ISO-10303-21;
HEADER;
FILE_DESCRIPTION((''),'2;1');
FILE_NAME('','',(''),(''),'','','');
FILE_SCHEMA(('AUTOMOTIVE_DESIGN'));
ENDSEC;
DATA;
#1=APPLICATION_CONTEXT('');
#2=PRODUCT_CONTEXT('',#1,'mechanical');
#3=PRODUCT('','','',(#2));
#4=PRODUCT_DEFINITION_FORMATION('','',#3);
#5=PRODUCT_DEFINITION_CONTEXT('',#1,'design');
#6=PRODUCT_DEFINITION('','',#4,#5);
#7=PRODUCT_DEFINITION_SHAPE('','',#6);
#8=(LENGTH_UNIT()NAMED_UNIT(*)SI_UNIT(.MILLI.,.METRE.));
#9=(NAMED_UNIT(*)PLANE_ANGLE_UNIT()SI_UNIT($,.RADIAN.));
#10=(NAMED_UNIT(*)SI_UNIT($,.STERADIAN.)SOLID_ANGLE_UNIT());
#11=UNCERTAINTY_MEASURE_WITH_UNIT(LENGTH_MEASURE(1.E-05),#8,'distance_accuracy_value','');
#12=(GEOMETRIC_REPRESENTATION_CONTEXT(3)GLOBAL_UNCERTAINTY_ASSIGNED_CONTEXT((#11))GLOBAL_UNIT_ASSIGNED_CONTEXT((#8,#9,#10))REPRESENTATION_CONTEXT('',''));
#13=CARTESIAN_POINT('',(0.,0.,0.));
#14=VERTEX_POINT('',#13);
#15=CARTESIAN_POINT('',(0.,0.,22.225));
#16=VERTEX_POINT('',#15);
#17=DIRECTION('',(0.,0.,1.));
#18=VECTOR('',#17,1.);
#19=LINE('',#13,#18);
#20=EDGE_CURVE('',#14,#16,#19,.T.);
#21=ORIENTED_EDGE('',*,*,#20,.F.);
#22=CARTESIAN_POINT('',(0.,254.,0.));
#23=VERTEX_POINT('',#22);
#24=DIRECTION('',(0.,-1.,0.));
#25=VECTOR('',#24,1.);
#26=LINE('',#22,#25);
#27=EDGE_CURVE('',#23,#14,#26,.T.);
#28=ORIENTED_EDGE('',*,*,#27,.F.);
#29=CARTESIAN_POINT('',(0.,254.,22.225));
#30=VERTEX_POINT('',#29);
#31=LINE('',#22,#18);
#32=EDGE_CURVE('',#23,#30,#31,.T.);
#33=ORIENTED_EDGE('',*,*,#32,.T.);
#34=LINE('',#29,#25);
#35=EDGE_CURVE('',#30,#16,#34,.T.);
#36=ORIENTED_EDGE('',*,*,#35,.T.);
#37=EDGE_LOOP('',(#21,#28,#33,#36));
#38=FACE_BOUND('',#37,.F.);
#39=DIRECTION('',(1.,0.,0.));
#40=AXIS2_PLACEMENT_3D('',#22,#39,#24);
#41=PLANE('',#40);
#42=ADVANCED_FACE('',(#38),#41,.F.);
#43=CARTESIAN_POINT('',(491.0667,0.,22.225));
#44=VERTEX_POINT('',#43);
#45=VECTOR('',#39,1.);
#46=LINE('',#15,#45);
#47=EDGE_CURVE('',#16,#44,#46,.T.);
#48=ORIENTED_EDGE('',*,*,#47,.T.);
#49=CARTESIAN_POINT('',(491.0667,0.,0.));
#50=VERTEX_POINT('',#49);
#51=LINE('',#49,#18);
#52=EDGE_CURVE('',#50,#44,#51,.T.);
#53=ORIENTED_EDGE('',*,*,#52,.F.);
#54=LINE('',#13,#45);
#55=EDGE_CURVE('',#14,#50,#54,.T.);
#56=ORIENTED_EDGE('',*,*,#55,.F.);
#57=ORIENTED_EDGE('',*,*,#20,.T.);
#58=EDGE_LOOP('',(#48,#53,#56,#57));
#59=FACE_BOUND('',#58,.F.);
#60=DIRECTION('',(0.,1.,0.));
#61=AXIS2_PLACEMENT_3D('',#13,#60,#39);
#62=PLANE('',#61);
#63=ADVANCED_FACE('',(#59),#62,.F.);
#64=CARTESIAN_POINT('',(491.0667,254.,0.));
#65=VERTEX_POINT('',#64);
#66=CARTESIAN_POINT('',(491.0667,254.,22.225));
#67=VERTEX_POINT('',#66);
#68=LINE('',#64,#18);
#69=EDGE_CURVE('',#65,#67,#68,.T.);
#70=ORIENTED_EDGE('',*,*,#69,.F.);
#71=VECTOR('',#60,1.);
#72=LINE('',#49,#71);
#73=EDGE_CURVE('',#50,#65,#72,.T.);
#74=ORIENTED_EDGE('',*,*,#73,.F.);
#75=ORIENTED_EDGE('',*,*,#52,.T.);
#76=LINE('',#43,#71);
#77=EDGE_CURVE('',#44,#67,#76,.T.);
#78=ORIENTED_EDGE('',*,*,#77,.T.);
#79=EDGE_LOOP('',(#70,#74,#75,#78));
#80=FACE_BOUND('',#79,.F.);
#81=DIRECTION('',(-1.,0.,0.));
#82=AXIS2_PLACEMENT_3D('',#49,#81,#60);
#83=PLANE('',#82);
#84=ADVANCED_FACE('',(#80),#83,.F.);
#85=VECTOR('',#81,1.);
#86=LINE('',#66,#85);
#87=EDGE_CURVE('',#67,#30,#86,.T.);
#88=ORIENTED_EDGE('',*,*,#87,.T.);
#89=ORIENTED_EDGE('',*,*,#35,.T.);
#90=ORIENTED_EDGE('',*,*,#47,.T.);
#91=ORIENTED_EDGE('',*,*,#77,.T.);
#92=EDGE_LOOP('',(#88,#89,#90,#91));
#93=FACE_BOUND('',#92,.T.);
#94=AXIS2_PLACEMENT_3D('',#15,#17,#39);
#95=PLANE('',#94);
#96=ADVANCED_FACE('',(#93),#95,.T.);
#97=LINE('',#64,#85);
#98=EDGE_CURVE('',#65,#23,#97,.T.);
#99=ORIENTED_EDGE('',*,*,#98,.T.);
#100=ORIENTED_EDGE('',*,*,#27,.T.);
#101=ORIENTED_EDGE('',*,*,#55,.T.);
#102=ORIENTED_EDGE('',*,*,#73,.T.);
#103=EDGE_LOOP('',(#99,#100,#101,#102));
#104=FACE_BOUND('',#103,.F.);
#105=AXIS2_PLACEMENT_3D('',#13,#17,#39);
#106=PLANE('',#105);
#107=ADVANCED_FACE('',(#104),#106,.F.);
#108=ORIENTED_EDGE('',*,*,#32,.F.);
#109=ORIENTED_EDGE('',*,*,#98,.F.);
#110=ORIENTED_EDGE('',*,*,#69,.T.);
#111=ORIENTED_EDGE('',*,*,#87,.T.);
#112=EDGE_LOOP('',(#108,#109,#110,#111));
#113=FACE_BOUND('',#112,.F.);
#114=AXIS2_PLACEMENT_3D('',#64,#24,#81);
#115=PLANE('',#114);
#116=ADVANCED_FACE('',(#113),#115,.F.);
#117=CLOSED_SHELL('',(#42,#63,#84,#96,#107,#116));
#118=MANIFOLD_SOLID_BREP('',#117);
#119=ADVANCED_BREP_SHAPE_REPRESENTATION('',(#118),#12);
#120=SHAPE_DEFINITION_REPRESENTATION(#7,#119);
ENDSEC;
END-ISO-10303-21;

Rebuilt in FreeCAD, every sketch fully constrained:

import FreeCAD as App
import Part
import Sketcher
from FreeCAD import Vector
Q = App.Units.Quantity


def add_polygon(sketch, points):
    """Adds a closed chain of lines whose ends are joined by coincident constraints."""
    first, n = sketch.GeometryCount, len(points)
    for a, b in zip(points, points[1:] + points[:1]):
        sketch.addGeometry(Part.LineSegment(App.Vector(*a, 0), App.Vector(*b, 0)), False)
    for i in range(n):
        sketch.addConstraint(Sketcher.Constraint("Coincident", first + i, 2, first + (i + 1) % n, 1))

doc = App.newDocument("Part")
body = doc.addObject("PartDesign::Body", "Body")

sketch1 = doc.addObject("Sketcher::SketchObject", "Sketch")
body.addObject(sketch1)
sketch1.AttachmentSupport = (doc.XY_Plane, [""])
sketch1.MapMode = "FlatFace"
add_polygon(sketch1, [(0, 254), (0, 0), (491, 0), (491, 254)])
sketch1.addConstraint([
    Sketcher.Constraint("Vertical", 0),
    Sketcher.Constraint("Horizontal", 1),
    Sketcher.Constraint("Vertical", 2),
    Sketcher.Constraint("Horizontal", 3),
    Sketcher.Constraint("Coincident", 0, 2, -1, 1),
    Sketcher.Constraint("DistanceY", 0, 2, 0, 1, Q("10 in")),
    Sketcher.Constraint("DistanceX", 1, 1, 1, 2, Q("491.0667 mm")),
])
pad1 = doc.addObject("PartDesign::Pad", "Pad")
body.addObject(pad1)
pad1.Profile = sketch1
pad1.Length = Q("0.875 in")

doc.recompute()
